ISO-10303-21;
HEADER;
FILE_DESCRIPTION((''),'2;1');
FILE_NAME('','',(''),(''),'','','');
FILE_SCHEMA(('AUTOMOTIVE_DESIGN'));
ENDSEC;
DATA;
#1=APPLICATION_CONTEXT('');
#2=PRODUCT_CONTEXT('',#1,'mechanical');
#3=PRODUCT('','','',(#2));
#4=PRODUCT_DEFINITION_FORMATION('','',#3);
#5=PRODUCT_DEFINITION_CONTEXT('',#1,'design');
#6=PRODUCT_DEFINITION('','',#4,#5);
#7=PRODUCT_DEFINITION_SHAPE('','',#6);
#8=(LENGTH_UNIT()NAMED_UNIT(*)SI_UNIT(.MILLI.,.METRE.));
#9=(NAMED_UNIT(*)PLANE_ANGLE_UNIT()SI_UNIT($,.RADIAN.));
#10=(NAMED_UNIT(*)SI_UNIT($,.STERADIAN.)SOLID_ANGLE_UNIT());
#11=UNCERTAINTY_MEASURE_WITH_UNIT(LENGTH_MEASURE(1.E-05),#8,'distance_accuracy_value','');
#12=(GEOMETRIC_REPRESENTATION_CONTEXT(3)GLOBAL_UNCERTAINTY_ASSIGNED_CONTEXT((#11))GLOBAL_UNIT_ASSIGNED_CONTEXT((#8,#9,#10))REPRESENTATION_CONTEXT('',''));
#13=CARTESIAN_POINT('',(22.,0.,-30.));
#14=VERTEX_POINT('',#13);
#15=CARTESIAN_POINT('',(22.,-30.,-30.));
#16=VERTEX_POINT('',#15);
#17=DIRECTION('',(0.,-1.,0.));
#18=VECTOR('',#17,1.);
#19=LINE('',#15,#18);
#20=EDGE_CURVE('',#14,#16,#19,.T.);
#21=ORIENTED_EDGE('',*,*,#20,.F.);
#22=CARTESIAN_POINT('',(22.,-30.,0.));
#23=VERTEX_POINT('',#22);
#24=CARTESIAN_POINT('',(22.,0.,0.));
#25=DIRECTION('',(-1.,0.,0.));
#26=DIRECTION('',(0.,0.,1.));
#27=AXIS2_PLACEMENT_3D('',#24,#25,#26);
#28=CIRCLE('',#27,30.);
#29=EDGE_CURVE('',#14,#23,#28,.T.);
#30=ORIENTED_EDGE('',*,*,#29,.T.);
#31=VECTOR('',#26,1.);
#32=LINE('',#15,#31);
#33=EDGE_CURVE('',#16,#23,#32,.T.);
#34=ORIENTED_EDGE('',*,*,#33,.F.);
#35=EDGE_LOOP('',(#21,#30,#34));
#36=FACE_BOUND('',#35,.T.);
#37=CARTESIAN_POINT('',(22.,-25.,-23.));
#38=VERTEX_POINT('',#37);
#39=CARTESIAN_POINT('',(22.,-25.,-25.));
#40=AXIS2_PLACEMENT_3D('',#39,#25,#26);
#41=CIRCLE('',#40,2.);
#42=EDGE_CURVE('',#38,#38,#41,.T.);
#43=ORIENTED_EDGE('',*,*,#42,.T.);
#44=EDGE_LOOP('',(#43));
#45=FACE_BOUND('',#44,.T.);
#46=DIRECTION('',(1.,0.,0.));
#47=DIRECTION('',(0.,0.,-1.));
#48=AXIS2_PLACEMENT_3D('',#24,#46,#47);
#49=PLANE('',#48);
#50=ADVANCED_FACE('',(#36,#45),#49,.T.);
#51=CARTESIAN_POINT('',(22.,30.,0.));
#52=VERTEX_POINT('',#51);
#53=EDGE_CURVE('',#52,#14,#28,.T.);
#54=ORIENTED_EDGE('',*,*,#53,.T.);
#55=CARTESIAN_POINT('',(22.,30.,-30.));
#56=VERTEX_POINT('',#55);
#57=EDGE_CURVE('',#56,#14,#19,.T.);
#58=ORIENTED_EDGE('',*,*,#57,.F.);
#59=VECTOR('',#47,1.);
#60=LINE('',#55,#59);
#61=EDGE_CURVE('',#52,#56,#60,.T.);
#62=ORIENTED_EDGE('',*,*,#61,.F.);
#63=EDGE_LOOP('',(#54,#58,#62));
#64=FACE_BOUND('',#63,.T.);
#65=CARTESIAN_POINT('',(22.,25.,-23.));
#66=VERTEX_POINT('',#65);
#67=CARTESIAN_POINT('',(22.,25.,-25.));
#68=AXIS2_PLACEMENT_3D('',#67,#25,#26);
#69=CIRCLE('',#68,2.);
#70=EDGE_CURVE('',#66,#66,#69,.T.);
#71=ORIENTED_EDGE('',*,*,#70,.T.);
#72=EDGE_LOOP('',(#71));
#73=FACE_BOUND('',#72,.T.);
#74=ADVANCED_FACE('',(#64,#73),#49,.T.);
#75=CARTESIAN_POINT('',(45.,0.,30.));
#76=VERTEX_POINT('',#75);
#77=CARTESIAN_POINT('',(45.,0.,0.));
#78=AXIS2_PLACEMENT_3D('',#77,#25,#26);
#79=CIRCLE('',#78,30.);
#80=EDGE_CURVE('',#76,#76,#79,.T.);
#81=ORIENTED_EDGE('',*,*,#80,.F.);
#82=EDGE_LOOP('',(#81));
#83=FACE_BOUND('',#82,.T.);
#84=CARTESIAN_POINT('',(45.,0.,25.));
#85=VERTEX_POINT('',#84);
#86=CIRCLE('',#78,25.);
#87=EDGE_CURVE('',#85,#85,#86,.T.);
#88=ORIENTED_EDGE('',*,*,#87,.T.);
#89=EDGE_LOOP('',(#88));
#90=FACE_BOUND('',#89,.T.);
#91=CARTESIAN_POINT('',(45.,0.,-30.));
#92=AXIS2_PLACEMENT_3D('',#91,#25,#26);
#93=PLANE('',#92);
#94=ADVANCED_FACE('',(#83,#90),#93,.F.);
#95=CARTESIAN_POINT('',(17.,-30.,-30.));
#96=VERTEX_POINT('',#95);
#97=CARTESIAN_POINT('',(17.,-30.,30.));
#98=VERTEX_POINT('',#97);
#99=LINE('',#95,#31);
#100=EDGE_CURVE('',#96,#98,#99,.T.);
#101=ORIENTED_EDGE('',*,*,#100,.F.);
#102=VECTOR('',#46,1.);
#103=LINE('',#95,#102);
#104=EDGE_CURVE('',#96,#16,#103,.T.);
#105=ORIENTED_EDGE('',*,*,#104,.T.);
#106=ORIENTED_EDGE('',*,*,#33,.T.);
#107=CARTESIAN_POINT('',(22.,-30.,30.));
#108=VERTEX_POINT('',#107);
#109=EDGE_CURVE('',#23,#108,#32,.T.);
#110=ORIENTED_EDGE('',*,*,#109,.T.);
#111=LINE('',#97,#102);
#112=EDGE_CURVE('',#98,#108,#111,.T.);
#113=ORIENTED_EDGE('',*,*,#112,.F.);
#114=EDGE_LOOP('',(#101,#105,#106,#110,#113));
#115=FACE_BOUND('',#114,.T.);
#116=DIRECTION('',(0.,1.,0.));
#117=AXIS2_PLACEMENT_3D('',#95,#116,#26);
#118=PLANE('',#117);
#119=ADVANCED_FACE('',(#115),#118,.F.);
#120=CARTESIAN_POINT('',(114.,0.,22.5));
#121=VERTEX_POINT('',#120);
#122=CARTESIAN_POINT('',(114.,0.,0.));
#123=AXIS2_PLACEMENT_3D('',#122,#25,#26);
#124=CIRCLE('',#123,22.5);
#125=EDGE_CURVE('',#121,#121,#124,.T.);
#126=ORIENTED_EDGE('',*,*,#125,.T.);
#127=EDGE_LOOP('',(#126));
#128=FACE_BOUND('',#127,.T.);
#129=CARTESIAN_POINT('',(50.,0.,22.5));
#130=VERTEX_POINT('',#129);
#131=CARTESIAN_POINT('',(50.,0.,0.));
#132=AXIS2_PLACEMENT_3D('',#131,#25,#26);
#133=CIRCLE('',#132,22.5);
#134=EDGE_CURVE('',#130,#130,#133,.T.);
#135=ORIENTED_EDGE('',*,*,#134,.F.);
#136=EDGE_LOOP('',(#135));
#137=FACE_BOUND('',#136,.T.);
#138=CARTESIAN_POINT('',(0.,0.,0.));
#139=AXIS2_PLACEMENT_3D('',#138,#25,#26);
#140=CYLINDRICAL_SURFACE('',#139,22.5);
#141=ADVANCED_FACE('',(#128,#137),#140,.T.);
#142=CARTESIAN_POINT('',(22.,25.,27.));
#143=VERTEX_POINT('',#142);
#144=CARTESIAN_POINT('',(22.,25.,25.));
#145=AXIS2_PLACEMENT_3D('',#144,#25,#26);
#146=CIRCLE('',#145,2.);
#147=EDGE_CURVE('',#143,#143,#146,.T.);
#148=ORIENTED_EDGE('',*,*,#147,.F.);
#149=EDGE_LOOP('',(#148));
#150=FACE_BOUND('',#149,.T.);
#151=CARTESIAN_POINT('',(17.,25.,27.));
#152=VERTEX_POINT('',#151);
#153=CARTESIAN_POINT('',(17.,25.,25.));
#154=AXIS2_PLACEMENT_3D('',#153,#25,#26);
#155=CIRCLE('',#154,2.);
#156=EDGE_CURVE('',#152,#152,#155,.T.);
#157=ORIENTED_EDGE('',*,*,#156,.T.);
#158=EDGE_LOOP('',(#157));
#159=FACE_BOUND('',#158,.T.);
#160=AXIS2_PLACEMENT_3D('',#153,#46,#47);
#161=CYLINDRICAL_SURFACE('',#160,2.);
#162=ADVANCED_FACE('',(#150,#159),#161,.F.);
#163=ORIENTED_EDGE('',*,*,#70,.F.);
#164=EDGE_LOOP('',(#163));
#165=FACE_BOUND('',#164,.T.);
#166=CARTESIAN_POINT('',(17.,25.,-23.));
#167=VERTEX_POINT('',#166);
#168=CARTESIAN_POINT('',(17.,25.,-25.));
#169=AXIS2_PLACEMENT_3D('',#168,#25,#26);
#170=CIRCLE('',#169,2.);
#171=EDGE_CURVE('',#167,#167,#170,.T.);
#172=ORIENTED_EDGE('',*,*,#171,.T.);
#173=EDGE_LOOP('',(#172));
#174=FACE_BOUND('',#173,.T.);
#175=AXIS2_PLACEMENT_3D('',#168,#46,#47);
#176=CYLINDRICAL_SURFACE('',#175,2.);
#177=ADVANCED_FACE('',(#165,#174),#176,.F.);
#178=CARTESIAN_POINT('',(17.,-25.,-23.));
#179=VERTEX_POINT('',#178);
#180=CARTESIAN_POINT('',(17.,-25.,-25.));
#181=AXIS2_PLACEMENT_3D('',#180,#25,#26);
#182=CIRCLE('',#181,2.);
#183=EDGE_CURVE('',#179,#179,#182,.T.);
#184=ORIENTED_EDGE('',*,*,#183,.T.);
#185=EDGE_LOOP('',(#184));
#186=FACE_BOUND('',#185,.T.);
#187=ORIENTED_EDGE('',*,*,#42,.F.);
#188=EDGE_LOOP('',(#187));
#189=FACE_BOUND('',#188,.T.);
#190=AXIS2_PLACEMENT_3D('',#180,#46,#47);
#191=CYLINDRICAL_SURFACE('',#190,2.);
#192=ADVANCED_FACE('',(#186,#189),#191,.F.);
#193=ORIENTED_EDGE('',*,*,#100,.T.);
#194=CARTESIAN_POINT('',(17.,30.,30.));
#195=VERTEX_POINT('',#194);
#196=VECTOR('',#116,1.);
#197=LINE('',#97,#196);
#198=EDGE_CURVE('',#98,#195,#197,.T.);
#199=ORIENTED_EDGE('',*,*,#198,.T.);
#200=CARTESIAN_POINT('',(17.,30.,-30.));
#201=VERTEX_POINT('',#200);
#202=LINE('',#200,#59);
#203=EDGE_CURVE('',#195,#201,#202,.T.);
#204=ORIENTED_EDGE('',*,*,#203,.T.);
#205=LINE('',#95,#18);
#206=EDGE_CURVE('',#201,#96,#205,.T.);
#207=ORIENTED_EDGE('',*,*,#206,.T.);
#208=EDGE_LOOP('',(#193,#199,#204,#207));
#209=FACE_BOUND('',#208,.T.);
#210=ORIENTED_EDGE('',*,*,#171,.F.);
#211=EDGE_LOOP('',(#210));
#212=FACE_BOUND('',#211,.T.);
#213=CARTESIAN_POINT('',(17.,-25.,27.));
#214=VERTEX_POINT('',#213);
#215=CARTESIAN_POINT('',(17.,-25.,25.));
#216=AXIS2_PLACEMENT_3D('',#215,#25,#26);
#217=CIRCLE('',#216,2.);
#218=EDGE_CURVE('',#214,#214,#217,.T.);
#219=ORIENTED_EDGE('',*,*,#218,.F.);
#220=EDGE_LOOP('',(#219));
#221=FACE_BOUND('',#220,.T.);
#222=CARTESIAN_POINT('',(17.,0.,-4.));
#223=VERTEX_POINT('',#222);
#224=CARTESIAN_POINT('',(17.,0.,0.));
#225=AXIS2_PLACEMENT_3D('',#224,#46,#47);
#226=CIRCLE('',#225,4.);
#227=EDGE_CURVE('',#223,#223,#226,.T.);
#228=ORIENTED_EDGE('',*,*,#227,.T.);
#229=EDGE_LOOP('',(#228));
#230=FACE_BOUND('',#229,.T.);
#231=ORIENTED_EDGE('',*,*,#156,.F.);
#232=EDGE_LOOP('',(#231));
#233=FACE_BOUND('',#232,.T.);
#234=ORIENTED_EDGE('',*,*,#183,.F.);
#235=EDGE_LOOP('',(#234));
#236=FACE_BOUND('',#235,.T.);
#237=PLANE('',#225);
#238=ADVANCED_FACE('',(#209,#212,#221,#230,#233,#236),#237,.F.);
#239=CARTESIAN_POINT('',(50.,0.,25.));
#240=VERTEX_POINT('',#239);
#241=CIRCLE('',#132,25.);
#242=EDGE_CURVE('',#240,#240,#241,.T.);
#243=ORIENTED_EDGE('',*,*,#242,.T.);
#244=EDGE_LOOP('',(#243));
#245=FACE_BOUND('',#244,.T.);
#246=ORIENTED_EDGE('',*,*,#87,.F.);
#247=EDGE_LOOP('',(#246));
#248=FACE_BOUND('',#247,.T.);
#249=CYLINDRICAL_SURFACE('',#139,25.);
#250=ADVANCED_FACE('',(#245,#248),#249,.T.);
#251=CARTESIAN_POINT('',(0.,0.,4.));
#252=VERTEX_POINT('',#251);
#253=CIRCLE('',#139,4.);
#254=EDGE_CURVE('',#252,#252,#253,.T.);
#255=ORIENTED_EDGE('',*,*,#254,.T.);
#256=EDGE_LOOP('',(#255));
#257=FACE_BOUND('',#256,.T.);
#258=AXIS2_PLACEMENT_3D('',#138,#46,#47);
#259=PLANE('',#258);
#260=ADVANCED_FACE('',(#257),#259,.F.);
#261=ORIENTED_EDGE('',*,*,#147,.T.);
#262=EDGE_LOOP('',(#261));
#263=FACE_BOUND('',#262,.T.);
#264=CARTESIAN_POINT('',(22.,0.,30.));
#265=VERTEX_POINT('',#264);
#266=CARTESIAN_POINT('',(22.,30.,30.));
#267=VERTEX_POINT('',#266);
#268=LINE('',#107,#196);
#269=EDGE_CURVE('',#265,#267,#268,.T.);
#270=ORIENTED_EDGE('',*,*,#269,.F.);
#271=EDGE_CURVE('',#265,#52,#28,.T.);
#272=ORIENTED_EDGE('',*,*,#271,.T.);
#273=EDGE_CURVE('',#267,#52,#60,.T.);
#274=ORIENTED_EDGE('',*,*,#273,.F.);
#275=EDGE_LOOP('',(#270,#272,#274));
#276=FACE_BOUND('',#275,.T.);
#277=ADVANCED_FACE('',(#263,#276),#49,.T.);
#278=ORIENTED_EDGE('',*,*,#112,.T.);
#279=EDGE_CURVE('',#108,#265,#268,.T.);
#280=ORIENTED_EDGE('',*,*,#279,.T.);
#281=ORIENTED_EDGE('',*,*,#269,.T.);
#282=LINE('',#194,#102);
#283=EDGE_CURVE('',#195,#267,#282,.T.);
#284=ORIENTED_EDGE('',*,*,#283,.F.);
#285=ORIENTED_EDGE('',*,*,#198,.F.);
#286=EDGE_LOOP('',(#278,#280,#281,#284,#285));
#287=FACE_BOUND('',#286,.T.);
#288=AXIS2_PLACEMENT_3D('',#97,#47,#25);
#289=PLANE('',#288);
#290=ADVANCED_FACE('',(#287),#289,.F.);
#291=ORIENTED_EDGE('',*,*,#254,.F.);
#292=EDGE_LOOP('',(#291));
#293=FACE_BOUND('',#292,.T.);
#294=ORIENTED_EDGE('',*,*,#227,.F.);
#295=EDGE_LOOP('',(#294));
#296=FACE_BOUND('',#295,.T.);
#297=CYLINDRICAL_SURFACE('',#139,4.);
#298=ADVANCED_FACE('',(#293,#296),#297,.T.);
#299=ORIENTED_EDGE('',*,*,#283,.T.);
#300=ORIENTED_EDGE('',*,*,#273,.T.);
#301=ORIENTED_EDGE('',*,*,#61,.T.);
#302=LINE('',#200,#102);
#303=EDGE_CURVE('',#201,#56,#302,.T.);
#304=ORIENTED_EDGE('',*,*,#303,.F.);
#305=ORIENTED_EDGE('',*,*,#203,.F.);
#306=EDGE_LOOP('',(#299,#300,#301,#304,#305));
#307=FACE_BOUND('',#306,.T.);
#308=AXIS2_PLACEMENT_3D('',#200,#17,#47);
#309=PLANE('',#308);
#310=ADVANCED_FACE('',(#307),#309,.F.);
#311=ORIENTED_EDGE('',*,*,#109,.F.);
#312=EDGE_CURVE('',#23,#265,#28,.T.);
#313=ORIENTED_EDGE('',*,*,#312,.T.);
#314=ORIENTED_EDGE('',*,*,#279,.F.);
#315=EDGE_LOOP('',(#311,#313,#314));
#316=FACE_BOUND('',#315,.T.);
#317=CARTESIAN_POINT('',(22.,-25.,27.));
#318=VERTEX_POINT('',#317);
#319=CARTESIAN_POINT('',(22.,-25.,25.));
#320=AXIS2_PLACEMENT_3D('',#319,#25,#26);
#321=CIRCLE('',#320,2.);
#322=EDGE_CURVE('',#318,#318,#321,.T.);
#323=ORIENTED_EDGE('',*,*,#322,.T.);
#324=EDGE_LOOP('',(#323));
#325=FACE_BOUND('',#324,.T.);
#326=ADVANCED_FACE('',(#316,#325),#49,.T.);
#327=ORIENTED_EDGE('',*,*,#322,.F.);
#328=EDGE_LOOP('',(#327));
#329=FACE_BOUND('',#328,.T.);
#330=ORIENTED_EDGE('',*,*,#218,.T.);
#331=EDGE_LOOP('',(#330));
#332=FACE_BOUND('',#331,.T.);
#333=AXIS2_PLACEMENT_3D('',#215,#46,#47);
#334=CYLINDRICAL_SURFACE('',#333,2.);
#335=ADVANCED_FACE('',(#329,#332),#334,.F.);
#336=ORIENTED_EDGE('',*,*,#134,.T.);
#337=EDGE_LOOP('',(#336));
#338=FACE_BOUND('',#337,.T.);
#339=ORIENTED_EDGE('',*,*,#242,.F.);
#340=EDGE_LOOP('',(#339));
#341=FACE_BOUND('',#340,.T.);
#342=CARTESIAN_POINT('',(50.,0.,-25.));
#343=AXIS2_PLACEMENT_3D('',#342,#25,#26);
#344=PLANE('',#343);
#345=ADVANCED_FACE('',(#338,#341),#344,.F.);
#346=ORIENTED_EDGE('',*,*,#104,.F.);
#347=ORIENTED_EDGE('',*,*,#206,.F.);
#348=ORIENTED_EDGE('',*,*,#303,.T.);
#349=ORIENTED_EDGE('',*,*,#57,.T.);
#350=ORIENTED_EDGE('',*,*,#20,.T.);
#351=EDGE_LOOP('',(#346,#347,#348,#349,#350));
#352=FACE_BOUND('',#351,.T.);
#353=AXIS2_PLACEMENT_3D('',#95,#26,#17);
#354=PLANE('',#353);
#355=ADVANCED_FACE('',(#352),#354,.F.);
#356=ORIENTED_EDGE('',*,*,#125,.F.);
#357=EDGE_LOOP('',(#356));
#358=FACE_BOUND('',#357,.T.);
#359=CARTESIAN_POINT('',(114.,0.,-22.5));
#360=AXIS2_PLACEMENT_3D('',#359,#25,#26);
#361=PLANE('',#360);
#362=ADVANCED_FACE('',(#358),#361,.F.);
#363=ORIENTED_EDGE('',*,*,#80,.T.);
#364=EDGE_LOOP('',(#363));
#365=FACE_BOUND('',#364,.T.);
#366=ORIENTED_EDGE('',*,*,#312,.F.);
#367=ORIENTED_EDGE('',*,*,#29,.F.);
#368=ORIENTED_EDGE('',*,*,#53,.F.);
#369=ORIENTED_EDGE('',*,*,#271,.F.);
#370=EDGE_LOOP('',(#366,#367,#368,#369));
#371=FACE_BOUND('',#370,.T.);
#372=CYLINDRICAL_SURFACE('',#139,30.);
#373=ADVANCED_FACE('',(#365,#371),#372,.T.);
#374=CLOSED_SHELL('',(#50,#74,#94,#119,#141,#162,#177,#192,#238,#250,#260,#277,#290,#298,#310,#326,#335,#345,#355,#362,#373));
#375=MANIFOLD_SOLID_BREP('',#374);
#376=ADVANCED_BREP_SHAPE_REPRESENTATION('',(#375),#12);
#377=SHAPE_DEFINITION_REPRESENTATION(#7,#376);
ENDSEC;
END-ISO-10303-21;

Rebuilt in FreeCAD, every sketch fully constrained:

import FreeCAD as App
import Part
import Sketcher
Q = App.Units.Quantity

doc = App.newDocument("Part")
body = doc.addObject("PartDesign::Body", "Body")

# Sketch on XZ plane
sketch1 = body.newObject("Sketcher::SketchObject", "Sketch")
sketch1.AttachmentSupport = (doc.getObject("XZ_Plane"), [""])
sketch1.MapMode = "FlatFace"
sketch1.addGeometry(Part.LineSegment(App.Vector(0, -4, 0), App.Vector(0, 0, 0)), False)
sketch1.addGeometry(Part.LineSegment(App.Vector(0, 0, 0), App.Vector(114, 0, 0)), False)
sketch1.addGeometry(Part.LineSegment(App.Vector(114, 0, 0), App.Vector(114, -22.5, 0)), False)
sketch1.addGeometry(Part.LineSegment(App.Vector(114, -22.5, 0), App.Vector(50, -22.5, 0)), False)
sketch1.addGeometry(Part.LineSegment(App.Vector(50, -22.5, 0), App.Vector(50, -25, 0)), False)
sketch1.addGeometry(Part.LineSegment(App.Vector(50, -25, 0), App.Vector(45, -25, 0)), False)
sketch1.addGeometry(Part.LineSegment(App.Vector(45, -25, 0), App.Vector(45, -30, 0)), False)
sketch1.addGeometry(Part.LineSegment(App.Vector(45, -30, 0), App.Vector(22, -30, 0)), False)
sketch1.addGeometry(Part.LineSegment(App.Vector(22, -30, 0), App.Vector(22, -12, 0)), False)
sketch1.addGeometry(Part.LineSegment(App.Vector(22, -12, 0), App.Vector(19, -12, 0)), False)
sketch1.addGeometry(Part.LineSegment(App.Vector(19, -12, 0), App.Vector(19, -4, 0)), False)
sketch1.addGeometry(Part.LineSegment(App.Vector(19, -4, 0), App.Vector(0, -4, 0)), False)
sketch1.addConstraint(Sketcher.Constraint("Coincident", 0, 2, 1, 1))
sketch1.addConstraint(Sketcher.Constraint("Coincident", 1, 2, 2, 1))
sketch1.addConstraint(Sketcher.Constraint("Coincident", 2, 2, 3, 1))
sketch1.addConstraint(Sketcher.Constraint("Coincident", 3, 2, 4, 1))
sketch1.addConstraint(Sketcher.Constraint("Coincident", 4, 2, 5, 1))
sketch1.addConstraint(Sketcher.Constraint("Coincident", 5, 2, 6, 1))
sketch1.addConstraint(Sketcher.Constraint("Coincident", 6, 2, 7, 1))
sketch1.addConstraint(Sketcher.Constraint("Coincident", 7, 2, 8, 1))
sketch1.addConstraint(Sketcher.Constraint("Coincident", 8, 2, 9, 1))
sketch1.addConstraint(Sketcher.Constraint("Coincident", 9, 2, 10, 1))
sketch1.addConstraint(Sketcher.Constraint("Coincident", 10, 2, 11, 1))
sketch1.addConstraint(Sketcher.Constraint("Coincident", 11, 2, 0, 1))
sketch1.addConstraint(Sketcher.Constraint("Vertical", 0))
sketch1.addConstraint(Sketcher.Constraint("Horizontal", 1))
sketch1.addConstraint(Sketcher.Constraint("Vertical", 2))
sketch1.addConstraint(Sketcher.Constraint("Horizontal", 3))
sketch1.addConstraint(Sketcher.Constraint("Vertical", 4))
sketch1.addConstraint(Sketcher.Constraint("Horizontal", 5))
sketch1.addConstraint(Sketcher.Constraint("Vertical", 6))
sketch1.addConstraint(Sketcher.Constraint("Horizontal", 7))
sketch1.addConstraint(Sketcher.Constraint("Vertical", 8))
sketch1.addConstraint(Sketcher.Constraint("Horizontal", 9))
sketch1.addConstraint(Sketcher.Constraint("Vertical", 10))
sketch1.addConstraint(Sketcher.Constraint("Horizontal", 11))
sketch1.addConstraint(Sketcher.Constraint("Coincident", 0, 2, -1, 1))
sketch1.addConstraint(Sketcher.Constraint("Equal", 5, 6))
sketch1.addConstraint(Sketcher.Constraint("DistanceX", 1, 1, 1, 2, Q("114 mm")))
sketch1.addConstraint(Sketcher.Constraint("DistanceX", 3, 2, 3, 1, Q("64 mm")))
sketch1.addConstraint(Sketcher.Constraint("DistanceX", 5, 2, 5, 1, Q("5 mm")))
sketch1.addConstraint(Sketcher.Constraint("DistanceX", 7, 2, 7, 1, Q("23 mm")))
sketch1.addConstraint(Sketcher.Constraint("DistanceX", 9, 2, 9, 1, Q("3 mm")))
sketch1.addConstraint(Sketcher.Constraint("DistanceY", 0, 1, 0, 2, Q("4 mm")))
sketch1.addConstraint(Sketcher.Constraint("DistanceY", 8, 1, 8, 2, Q("18 mm")))
sketch1.addConstraint(Sketcher.Constraint("DistanceY", 10, 1, 10, 2, Q("8 mm")))
sketch1.addConstraint(Sketcher.Constraint("DistanceY", 2, 2, 2, 1, Q("22.5 mm")))
revolution = body.newObject("PartDesign::Revolution", "Revolution")
revolution.Profile = sketch1
revolution.ReferenceAxis = (sketch1, ["H_Axis"])
revolution.Angle = 360

# Sketch on YZ plane
sketch2 = body.newObject("Sketcher::SketchObject", "Sketch001")
sketch2.AttachmentSupport = (doc.getObject("YZ_Plane"), [""])
sketch2.MapMode = "FlatFace"
sketch2.AttachmentOffset = App.Placement(App.Vector(0, 0, 22), App.Rotation())
sketch2.addGeometry(Part.LineSegment(App.Vector(30, -30, 0), App.Vector(-30, -30, 0)), False)
sketch2.addGeometry(Part.LineSegment(App.Vector(-30, -30, 0), App.Vector(-30, 30, 0)), False)
sketch2.addGeometry(Part.LineSegment(App.Vector(-30, 30, 0), App.Vector(30, 30, 0)), False)
sketch2.addGeometry(Part.LineSegment(App.Vector(30, 30, 0), App.Vector(30, -30, 0)), False)
sketch2.addGeometry(Part.Circle(App.Vector(-25, -25, 0), App.Vector(0, 0, 1), 2), False)
sketch2.addGeometry(Part.Circle(App.Vector(-25, 25, 0), App.Vector(0, 0, 1), 2), False)
sketch2.addGeometry(Part.Circle(App.Vector(25, -25, 0), App.Vector(0, 0, 1), 2), False)
sketch2.addGeometry(Part.Circle(App.Vector(25, 25, 0), App.Vector(0, 0, 1), 2), False)
sketch2.addConstraint(Sketcher.Constraint("Coincident", 0, 2, 1, 1))
sketch2.addConstraint(Sketcher.Constraint("Coincident", 1, 2, 2, 1))
sketch2.addConstraint(Sketcher.Constraint("Coincident", 2, 2, 3, 1))
sketch2.addConstraint(Sketcher.Constraint("Coincident", 3, 2, 0, 1))
sketch2.addConstraint(Sketcher.Constraint("Horizontal", 0))
sketch2.addConstraint(Sketcher.Constraint("Vertical", 1))
sketch2.addConstraint(Sketcher.Constraint("Horizontal", 2))
sketch2.addConstraint(Sketcher.Constraint("Vertical", 3))
sketch2.addConstraint(Sketcher.Constraint("Equal", 4, 5))
sketch2.addConstraint(Sketcher.Constraint("Equal", 5, 6))
sketch2.addConstraint(Sketcher.Constraint("Equal", 6, 7))
sketch2.addConstraint(Sketcher.Constraint("Symmetric", 5, 3, 6, 3, -1, 1))
sketch2.addConstraint(Sketcher.Constraint("Symmetric", 4, 3, 7, 3, -1, 1))
sketch2.addConstraint(Sketcher.Constraint("Symmetric", 0, 2, 2, 2, -1, 1))
sketch2.addConstraint(Sketcher.Constraint("Symmetric", 4, 3, 6, 3, -2))
sketch2.addConstraint(Sketcher.Constraint("Equal", 2, 1))
sketch2.addConstraint(Sketcher.Constraint("Diameter", 4, Q("4 mm")))
sketch2.addConstraint(Sketcher.Constraint("DistanceX", 0, 2, 0, 1, Q("60 mm")))
sketch2.addConstraint(Sketcher.Constraint("DistanceX", 4, 3, -1, 1, Q("25 mm")))
sketch2.addConstraint(Sketcher.Constraint("DistanceY", 4, 3, -1, 1, Q("25 mm")))
pad1 = body.newObject("PartDesign::Pad", "Pad")
pad1.Profile = sketch2
pad1.Length = 5
pad1.Reversed = True

doc.recompute()
